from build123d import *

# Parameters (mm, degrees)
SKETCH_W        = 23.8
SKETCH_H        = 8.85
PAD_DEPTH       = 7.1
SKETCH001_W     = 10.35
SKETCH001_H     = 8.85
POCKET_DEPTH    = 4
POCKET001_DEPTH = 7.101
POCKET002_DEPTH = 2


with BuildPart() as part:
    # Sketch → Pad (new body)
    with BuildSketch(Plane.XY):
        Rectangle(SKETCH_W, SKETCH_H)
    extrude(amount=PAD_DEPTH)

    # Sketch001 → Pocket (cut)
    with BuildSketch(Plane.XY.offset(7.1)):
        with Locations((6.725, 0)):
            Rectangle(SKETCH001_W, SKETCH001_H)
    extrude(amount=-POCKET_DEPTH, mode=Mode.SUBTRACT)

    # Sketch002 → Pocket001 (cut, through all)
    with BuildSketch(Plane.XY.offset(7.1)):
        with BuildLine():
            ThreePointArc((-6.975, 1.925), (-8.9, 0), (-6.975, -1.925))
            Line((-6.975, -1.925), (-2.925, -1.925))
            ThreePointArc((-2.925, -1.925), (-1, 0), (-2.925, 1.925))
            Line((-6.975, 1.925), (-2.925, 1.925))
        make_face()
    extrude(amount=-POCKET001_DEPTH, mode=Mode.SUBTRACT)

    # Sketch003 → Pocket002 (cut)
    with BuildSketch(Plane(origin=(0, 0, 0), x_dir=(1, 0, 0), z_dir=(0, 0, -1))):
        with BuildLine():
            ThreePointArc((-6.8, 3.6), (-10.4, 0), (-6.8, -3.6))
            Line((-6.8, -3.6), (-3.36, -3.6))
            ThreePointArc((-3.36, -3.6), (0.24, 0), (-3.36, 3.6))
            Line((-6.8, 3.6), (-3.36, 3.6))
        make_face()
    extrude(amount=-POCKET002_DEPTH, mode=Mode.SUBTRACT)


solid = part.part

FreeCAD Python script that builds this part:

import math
import FreeCAD as App
import Part
import Sketcher


def add_polygon(sketch, points):
    """Adds a closed chain of lines whose ends are joined by coincident constraints."""
    first, n = sketch.GeometryCount, len(points)
    for a, b in zip(points, points[1:] + points[:1]):
        sketch.addGeometry(Part.LineSegment(App.Vector(*a, 0), App.Vector(*b, 0)), False)
    for i in range(n):
        sketch.addConstraint(Sketcher.Constraint("Coincident", first + i, 2, first + (i + 1) % n, 1))

doc = App.newDocument("Part")
body = doc.addObject("PartDesign::Body", "Body")

sketch1 = doc.addObject("Sketcher::SketchObject", "Sketch")
body.addObject(sketch1)
sketch1.AttachmentSupport = (doc.XY_Plane, [""])
sketch1.MapMode = "FlatFace"
add_polygon(sketch1, [(-11.9, 4.425), (-11.9, -4.425), (11.9, -4.425), (11.9, 4.425)])
sketch1.addConstraint([
    Sketcher.Constraint("Vertical", 0),
    Sketcher.Constraint("Horizontal", 1),
    Sketcher.Constraint("Vertical", 2),
    Sketcher.Constraint("Horizontal", 3),
    Sketcher.Constraint("Symmetric", 0, 2, 2, 2, -1, 1),
    Sketcher.Constraint("DistanceX", 1, 1, 1, 2, 23.8),
    Sketcher.Constraint("DistanceY", 0, 2, 0, 1, 8.85),
])
pad1 = doc.addObject("PartDesign::Pad", "Pad")
body.addObject(pad1)
pad1.Profile = sketch1
pad1.Length = 7.1

sketch2 = doc.addObject("Sketcher::SketchObject", "Sketch001")
body.addObject(sketch2)
sketch2.AttachmentSupport = (doc.XY_Plane, [""])
sketch2.MapMode = "FlatFace"
sketch2.AttachmentOffset = App.Placement(App.Vector(0, 0, 7.1), App.Rotation())
add_polygon(sketch2, [(1.55, 4.425), (1.55, -4.425), (11.9, -4.425), (11.9, 4.425)])
sketch2.addConstraint([
    Sketcher.Constraint("Vertical", 0),
    Sketcher.Constraint("Horizontal", 1),
    Sketcher.Constraint("Vertical", 2),
    Sketcher.Constraint("Horizontal", 3),
    Sketcher.Constraint("DistanceX", 1, 1, 1, 2, 10.35),
    Sketcher.Constraint("DistanceY", 0, 2, 0, 1, 8.85),
    Sketcher.Constraint("DistanceX", -1, 1, 1, 2, 11.9),
    Sketcher.Constraint("DistanceY", 0, 2, -1, 1, 4.425),
])
pocket1 = doc.addObject("PartDesign::Pocket", "Pocket")
body.addObject(pocket1)
pocket1.Profile = sketch2
pocket1.Length = 4

sketch3 = doc.addObject("Sketcher::SketchObject", "Sketch002")
body.addObject(sketch3)
sketch3.AttachmentSupport = (doc.XY_Plane, [""])
sketch3.MapMode = "FlatFace"
sketch3.AttachmentOffset = App.Placement(App.Vector(0, 0, 7.1), App.Rotation())
sketch3.addGeometry([
    Part.ArcOfCircle(Part.Circle(App.Vector(-6.975, 0, 0), App.Vector(0, 0, 1), 1.925), math.radians(90), math.radians(270)),
    Part.LineSegment(App.Vector(-6.975, -1.925, 0), App.Vector(-2.925, -1.925, 0)),
    Part.ArcOfCircle(Part.Circle(App.Vector(-2.925, 0, 0), App.Vector(0, 0, 1), 1.925), math.radians(-90), math.radians(90)),
    Part.LineSegment(App.Vector(-2.925, 1.925, 0), App.Vector(-6.975, 1.925, 0)),
], False)
sketch3.addConstraint([
    Sketcher.Constraint("Tangent", 0, 2, 1, 1),
    Sketcher.Constraint("Tangent", 1, 2, 2, 1),
    Sketcher.Constraint("Tangent", 2, 2, 3, 1),
    Sketcher.Constraint("Tangent", 3, 2, 0, 1),
    Sketcher.Constraint("Horizontal", 1),
    Sketcher.Constraint("Horizontal", 3),
    Sketcher.Constraint("PointOnObject", 0, 3, -1),
    Sketcher.Constraint("Radius", 0, 1.925),
    Sketcher.Constraint("DistanceX", 1, 1, 1, 2, 4.05),
    Sketcher.Constraint("DistanceX", 0, 3, -1, 1, 6.975),
])
pocket2 = doc.addObject("PartDesign::Pocket", "Pocket001")
body.addObject(pocket2)
pocket2.Profile = sketch3
pocket2.Type = "ThroughAll"

sketch4 = doc.addObject("Sketcher::SketchObject", "Sketch003")
body.addObject(sketch4)
sketch4.AttachmentSupport = (doc.XY_Plane, [""])
sketch4.MapMode = "FlatFace"
sketch4.addGeometry([
    Part.ArcOfCircle(Part.Circle(App.Vector(-6.8, 0, 0), App.Vector(0, 0, 1), 3.6), math.radians(90), math.radians(270)),
    Part.LineSegment(App.Vector(-6.8, 3.6, 0), App.Vector(-3.36, 3.6, 0)),
    Part.ArcOfCircle(Part.Circle(App.Vector(-3.36, 0, 0), App.Vector(0, 0, 1), 3.6), math.radians(-90), math.radians(90)),
    Part.LineSegment(App.Vector(-3.36, -3.6, 0), App.Vector(-6.8, -3.6, 0)),
], False)
sketch4.addConstraint([
    Sketcher.Constraint("Tangent", 0, 1, 1, 1),
    Sketcher.Constraint("Tangent", 1, 2, 2, 2),
    Sketcher.Constraint("Tangent", 2, 1, 3, 1),
    Sketcher.Constraint("Tangent", 3, 2, 0, 2),
    Sketcher.Constraint("Horizontal", 1),
    Sketcher.Constraint("Horizontal", 3),
    Sketcher.Constraint("PointOnObject", 0, 3, -1),
    Sketcher.Constraint("Radius", 0, 3.6),
    Sketcher.Constraint("DistanceX", 1, 1, 1, 2, 3.44),
    Sketcher.Constraint("DistanceX", 0, 3, -1, 1, 6.8),
])
pocket3 = doc.addObject("PartDesign::Pocket", "Pocket002")
body.addObject(pocket3)
pocket3.Profile = sketch4
pocket3.Length = 2
pocket3.Reversed = True

doc.recompute()
